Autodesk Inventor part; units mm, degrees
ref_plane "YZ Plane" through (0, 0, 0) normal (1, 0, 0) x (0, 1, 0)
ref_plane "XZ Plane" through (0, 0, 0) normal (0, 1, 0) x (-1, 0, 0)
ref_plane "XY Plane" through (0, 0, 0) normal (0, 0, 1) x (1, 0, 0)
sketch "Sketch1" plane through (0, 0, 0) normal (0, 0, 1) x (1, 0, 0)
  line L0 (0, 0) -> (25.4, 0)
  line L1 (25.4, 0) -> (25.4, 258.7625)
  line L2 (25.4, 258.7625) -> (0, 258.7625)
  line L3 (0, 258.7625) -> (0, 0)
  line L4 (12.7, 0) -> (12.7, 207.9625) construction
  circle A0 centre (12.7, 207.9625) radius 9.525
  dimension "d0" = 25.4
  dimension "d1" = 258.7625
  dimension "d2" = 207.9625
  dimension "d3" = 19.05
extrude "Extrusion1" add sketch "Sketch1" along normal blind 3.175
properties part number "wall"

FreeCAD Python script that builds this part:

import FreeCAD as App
import Part
import Sketcher
from FreeCAD import Vector
Q = App.Units.Quantity

doc = App.newDocument("Part")
body = doc.addObject("PartDesign::Body", "Body")

# Sketch on XY plane
sketch1 = body.newObject("Sketcher::SketchObject", "Sketch")
sketch1.AttachmentSupport = (doc.getObject("XY_Plane"), [""])
sketch1.MapMode = "FlatFace"
sketch1.addGeometry([
    Part.LineSegment(Vector(0, 258.7625, 0), Vector(0, 0, 0)),  # 0
    Part.LineSegment(Vector(0, 0, 0), Vector(25.4, 0, 0)),  # 1
    Part.LineSegment(Vector(25.4, 0, 0), Vector(25.4, 258.7625, 0)),  # 2
    Part.LineSegment(Vector(25.4, 258.7625, 0), Vector(0, 258.7625, 0)),  # 3
    Part.Circle(Vector(12.7, 207.9625, 0), Vector(0, 0, 1), 9.525),  # 4
], False)
sketch1.addConstraint([
    Sketcher.Constraint("Coincident", 0, 2, 1, 1),
    Sketcher.Constraint("Coincident", 1, 2, 2, 1),
    Sketcher.Constraint("Coincident", 2, 2, 3, 1),
    Sketcher.Constraint("Coincident", 3, 2, 0, 1),
    Sketcher.Constraint("Vertical", 0),
    Sketcher.Constraint("Horizontal", 1),
    Sketcher.Constraint("Vertical", 2),
    Sketcher.Constraint("Horizontal", 3),
    Sketcher.Constraint("Coincident", 0, 2, -1, 1),
    Sketcher.Constraint("Diameter", 4, Q("0.75 in")),
    Sketcher.Constraint("DistanceX", 1, 1, 1, 2, Q("1 in")),
    Sketcher.Constraint("DistanceY", 0, 2, 0, 1, Q("10.1875 in")),
    Sketcher.Constraint("DistanceY", -1, 1, 4, 3, Q("8.1875 in")),
    Sketcher.Constraint("DistanceX", -1, 1, 4, 3, Q("0.5 in")),
])
pad1 = body.newObject("PartDesign::Pad", "Pad")
pad1.Profile = sketch1
pad1.Length = Q("0.125 in")

doc.recompute()
